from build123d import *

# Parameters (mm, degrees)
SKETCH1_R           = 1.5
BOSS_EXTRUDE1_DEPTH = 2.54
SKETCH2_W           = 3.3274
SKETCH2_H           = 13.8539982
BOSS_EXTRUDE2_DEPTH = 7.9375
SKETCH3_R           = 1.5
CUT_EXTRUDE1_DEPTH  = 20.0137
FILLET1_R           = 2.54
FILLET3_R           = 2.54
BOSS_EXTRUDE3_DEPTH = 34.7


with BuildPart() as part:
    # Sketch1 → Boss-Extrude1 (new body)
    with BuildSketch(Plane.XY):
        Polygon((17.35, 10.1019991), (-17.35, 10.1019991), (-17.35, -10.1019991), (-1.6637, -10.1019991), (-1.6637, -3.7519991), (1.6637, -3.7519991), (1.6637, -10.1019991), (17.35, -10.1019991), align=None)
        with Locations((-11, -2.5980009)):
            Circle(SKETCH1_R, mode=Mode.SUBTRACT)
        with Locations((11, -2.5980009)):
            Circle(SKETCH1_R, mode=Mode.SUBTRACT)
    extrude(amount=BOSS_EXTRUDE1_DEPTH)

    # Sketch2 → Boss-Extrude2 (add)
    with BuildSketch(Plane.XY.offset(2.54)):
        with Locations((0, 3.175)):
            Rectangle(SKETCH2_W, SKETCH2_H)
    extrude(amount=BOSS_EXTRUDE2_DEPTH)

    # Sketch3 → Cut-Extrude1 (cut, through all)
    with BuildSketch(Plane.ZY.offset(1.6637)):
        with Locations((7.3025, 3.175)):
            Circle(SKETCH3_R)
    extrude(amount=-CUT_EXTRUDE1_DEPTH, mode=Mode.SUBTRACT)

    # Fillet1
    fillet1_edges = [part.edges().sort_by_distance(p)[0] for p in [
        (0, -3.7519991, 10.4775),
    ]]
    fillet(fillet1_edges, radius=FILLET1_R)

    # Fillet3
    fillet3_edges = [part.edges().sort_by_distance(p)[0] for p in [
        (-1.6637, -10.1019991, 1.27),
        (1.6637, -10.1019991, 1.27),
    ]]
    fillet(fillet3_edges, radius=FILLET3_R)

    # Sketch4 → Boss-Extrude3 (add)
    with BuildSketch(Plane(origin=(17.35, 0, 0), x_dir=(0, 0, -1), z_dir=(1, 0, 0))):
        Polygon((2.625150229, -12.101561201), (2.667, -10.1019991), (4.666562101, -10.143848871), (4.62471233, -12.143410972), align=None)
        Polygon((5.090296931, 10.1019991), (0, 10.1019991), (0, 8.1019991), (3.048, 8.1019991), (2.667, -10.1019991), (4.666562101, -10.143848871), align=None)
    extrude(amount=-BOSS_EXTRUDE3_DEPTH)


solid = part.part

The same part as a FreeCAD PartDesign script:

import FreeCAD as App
import Part
import Sketcher

V = App.Vector
Q = App.Units.Quantity


def edges_at(feature, points):
    """Names of the edges that pass closest to the given points."""
    edges = feature.Shape.Edges
    near = lambda p: min(range(len(edges)), key=lambda i: edges[i].distToShape(Part.Vertex(*p))[0])
    return sorted({f"Edge{near(p) + 1}" for p in points})


def add_polygon(sketch, points):
    """Adds a closed chain of lines whose ends are joined by coincident constraints."""
    first, n = sketch.GeometryCount, len(points)
    for a, b in zip(points, points[1:] + points[:1]):
        sketch.addGeometry(Part.LineSegment(App.Vector(*a, 0), App.Vector(*b, 0)), False)
    for i in range(n):
        sketch.addConstraint(Sketcher.Constraint("Coincident", first + i, 2, first + (i + 1) % n, 1))

doc = App.newDocument("Part")
body = doc.addObject("PartDesign::Body", "Body")

# Sketch on XY plane
sketch1 = body.newObject("Sketcher::SketchObject", "Sketch")
sketch1.AttachmentSupport = (doc.getObject("XY_Plane"), [""])
sketch1.MapMode = "FlatFace"
add_polygon(sketch1, [(17.4, 10.1), (-17.4, 10.1), (-17.4, -10.1), (-1.7, -10.1), (-1.7, -3.8), (1.7, -3.8), (1.7, -10.1), (17.4, -10.1)])  # lines 0-7
sketch1.addGeometry(Part.Circle(V(-11, -2.6, 0), V(0, 0, 1), 1.5), False)  # 8
sketch1.addGeometry(Part.Circle(V(11, -2.6, 0), V(0, 0, 1), 1.5), False)  # 9
sketch1.addConstraint([
    Sketcher.Constraint("Horizontal", 0),
    Sketcher.Constraint("Vertical", 1),
    Sketcher.Constraint("Horizontal", 2),
    Sketcher.Constraint("Vertical", 3),
    Sketcher.Constraint("Horizontal", 4),
    Sketcher.Constraint("Vertical", 5),
    Sketcher.Constraint("Horizontal", 6),
    Sketcher.Constraint("Vertical", 7),
    Sketcher.Constraint("Equal", 8, 9),
    Sketcher.Constraint("Symmetric", 0, 2, 6, 2, -1, 1),
    Sketcher.Constraint("Symmetric", 8, 3, 9, 3, -2),
    Sketcher.Constraint("Symmetric", 2, 2, 5, 2, -2),
    Sketcher.Constraint("DistanceY", 3, 1, 3, 2, Q("0.25 in")),
    Sketcher.Constraint("DistanceY", 8, 3, 0, 2, Q("0.5 in")),
    Sketcher.Constraint("Diameter", 8, 3.0),
    Sketcher.Constraint("DistanceX", 4, 1, 4, 2, Q("0.131 in")),
    Sketcher.Constraint("DistanceX", 0, 2, 8, 3, Q("0.25 in")),
    Sketcher.Constraint("DistanceX", 0, 2, 0, 1, 34.7),
    Sketcher.Constraint("DistanceY", 1, 2, 1, 1, 20.203998),
])
pad1 = body.newObject("PartDesign::Pad", "Pad")
pad1.Profile = sketch1
pad1.Length = Q("0.1 in")

# Sketch on XY plane
sketch2 = body.newObject("Sketcher::SketchObject", "Sketch001")
sketch2.AttachmentSupport = (doc.getObject("XY_Plane"), [""])
sketch2.MapMode = "FlatFace"
sketch2.AttachmentOffset = App.Placement(V(0, 0, 0.1 * 25.4), App.Rotation())
add_polygon(sketch2, [(-1.7, 10.1), (-1.7, -3.8), (1.7, -3.8), (1.7, 10.1)])  # lines 0-3
sketch2.addConstraint([
    Sketcher.Constraint("Vertical", 0),
    Sketcher.Constraint("Horizontal", 1),
    Sketcher.Constraint("Vertical", 2),
    Sketcher.Constraint("Horizontal", 3),
    Sketcher.Constraint("DistanceX", 1, 1, 1, 2, Q("0.131 in")),
    Sketcher.Constraint("DistanceY", 0, 2, 0, 1, 13.853998),
    Sketcher.Constraint("DistanceX", 0, 2, -1, 1, Q("0.0655 in")),
    Sketcher.Constraint("DistanceY", 0, 2, -1, 1, 3.751999),
])
pad2 = body.newObject("PartDesign::Pad", "Pad001")
pad2.Profile = sketch2
pad2.Length = Q("0.3125 in")

# Sketch on YZ plane
sketch3 = body.newObject("Sketcher::SketchObject", "Sketch002")
sketch3.AttachmentSupport = (doc.getObject("YZ_Plane"), [""])
sketch3.MapMode = "FlatFace"
sketch3.AttachmentOffset = App.Placement(V(0, 0, -0.0655 * 25.4), App.Rotation())
sketch3.addGeometry(Part.Circle(V(3.2, 7.3, 0), V(0, 0, 1), 1.5), False)
sketch3.addConstraint([
    Sketcher.Constraint("Diameter", 0, 3.0),
    Sketcher.Constraint("DistanceX", -1, 1, 0, 3, Q("0.125 in")),
    Sketcher.Constraint("DistanceY", -1, 1, 0, 3, Q("0.2875 in")),
])
pocket1 = body.newObject("PartDesign::Pocket", "Pocket")
pocket1.Profile = sketch3
pocket1.Type = "ThroughAll"
pocket1.Reversed = True
doc.recompute()

fillet = body.newObject("PartDesign::Fillet", "Fillet")
fillet.Base = (pocket1, edges_at(pocket1, [(0, -3.752, 10.477)]))
fillet.Radius = Q("0.1 in")
doc.recompute()

fillet2 = body.newObject("PartDesign::Fillet", "Fillet001")
fillet2.Base = (fillet, edges_at(fillet, [(-1.664, -10.102, 1.27), (1.664, -10.102, 1.27)]))
fillet2.Radius = Q("0.1 in")

# Sketch on YZ plane
sketch4 = body.newObject("Sketcher::SketchObject", "Sketch003")
sketch4.AttachmentSupport = (doc.getObject("YZ_Plane"), [""])
sketch4.MapMode = "FlatFace"
sketch4.AttachmentOffset = App.Placement(V(0, 0, 17.35), App.Rotation())
add_polygon(sketch4, [(-10.1, -2.7), (-12.1, -2.6), (-12.1, -4.6), (-10.1, -4.7), (10.1, -5.1), (10.1, 0), (8.1, 0), (8.1, -3)])  # lines 0-7
sketch4.addConstraint([
    Sketcher.Constraint("Vertical", 4),
    Sketcher.Constraint("Horizontal", 5),
    Sketcher.Constraint("Vertical", 6),
    Sketcher.Constraint("PointOnObject", 4, 2, -1),
    Sketcher.Constraint("Perpendicular", 0, 1),
    Sketcher.Constraint("Perpendicular", 1, 2),
    Sketcher.Constraint("Parallel", 2, 3),
    Sketcher.Constraint("Parallel", 3, 7),
    Sketcher.Constraint("Equal", 0, 1),
    Sketcher.Constraint("Equal", 1, 2),
    Sketcher.Constraint("DistanceY", 6, 2, 6, 1, Q("0.12 in")),
    Sketcher.Constraint("DistanceY", 7, 2, -1, 1, Q("0.105 in")),
    Sketcher.Constraint("DistanceX", 5, 2, 5, 1, 2.0),
    Sketcher.Constraint("Distance", 0, 2.0),
    Sketcher.Constraint("DistanceX", -1, 1, 3, 2, 10.101999),
    Sketcher.Constraint("DistanceX", 7, 2, -1, 1, 10.101999),
])
pad3 = body.newObject("PartDesign::Pad", "Pad002")
pad3.Profile = sketch4
pad3.Length = 34.7
pad3.Reversed = True

doc.recompute()
